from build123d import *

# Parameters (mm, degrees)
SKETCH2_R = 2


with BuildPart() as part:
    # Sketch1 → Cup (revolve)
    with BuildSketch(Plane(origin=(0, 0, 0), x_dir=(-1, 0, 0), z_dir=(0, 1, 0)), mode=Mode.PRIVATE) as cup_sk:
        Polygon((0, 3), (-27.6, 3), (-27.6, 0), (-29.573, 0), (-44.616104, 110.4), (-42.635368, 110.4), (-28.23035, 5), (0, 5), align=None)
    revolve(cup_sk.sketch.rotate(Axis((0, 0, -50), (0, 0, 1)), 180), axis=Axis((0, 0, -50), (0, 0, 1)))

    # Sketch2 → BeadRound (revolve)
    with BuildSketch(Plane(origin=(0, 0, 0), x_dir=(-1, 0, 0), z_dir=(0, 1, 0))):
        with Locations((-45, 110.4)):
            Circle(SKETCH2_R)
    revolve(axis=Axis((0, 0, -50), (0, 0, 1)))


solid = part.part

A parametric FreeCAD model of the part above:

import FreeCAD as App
import Part
import Sketcher
from FreeCAD import Vector
Q = App.Units.Quantity


def add_polygon(sketch, points):
    """Adds a closed chain of lines whose ends are joined by coincident constraints."""
    first, n = sketch.GeometryCount, len(points)
    for a, b in zip(points, points[1:] + points[:1]):
        sketch.addGeometry(Part.LineSegment(App.Vector(*a, 0), App.Vector(*b, 0)), False)
    for i in range(n):
        sketch.addConstraint(Sketcher.Constraint("Coincident", first + i, 2, first + (i + 1) % n, 1))

doc = App.newDocument("Part")
body = doc.addObject("PartDesign::Body", "Body")

# Sketch on XZ plane
sketch1 = body.newObject("Sketcher::SketchObject", "Sketch")
sketch1.AttachmentSupport = (doc.getObject("XZ_Plane"), [""])
sketch1.MapMode = "FlatFace"
add_polygon(sketch1, [(27.6, 3), (0, 3), (0, 5), (28.2, 5), (42.6, 110.4), (44.6, 110.4), (29.6, 0), (27.6, 0)])  # lines 0-7
sketch1.addConstraint([
    Sketcher.Constraint("Horizontal", 0),
    Sketcher.Constraint("Vertical", 1),
    Sketcher.Constraint("Horizontal", 2),
    Sketcher.Constraint("Horizontal", 4),
    Sketcher.Constraint("Horizontal", 6),
    Sketcher.Constraint("Vertical", 7),
    Sketcher.Constraint("PointOnObject", 0, 2, -2),
    Sketcher.Constraint("PointOnObject", 5, 2, -1),
    Sketcher.Constraint("DistanceY", 1, 1, 1, 2, Q("2 mm")),
    Sketcher.Constraint("DistanceY", 7, 1, 7, 2, Q("3 mm")),
    Sketcher.Constraint("DistanceX", 0, 2, 0, 1, Q("27.6 mm")),
    Sketcher.Constraint("DistanceY", -1, 1, 3, 2, Q("110.4 mm")),
    Sketcher.Constraint("DistanceX", 6, 2, 6, 1, Q("1.973 mm")),
    Sketcher.Constraint("DistanceX", 2, 1, 2, 2, Q("28.23035 mm")),
    Sketcher.Constraint("DistanceX", 4, 1, 4, 2, Q("1.980736 mm")),
    Sketcher.Constraint("Distance", 3, Q("106.379813 mm")),
])
revolution = body.newObject("PartDesign::Revolution", "Revolution")
revolution.Profile = sketch1
revolution.ReferenceAxis = (sketch1, ["V_Axis"])
revolution.Angle = 360

# Sketch on XZ plane
sketch2 = body.newObject("Sketcher::SketchObject", "Sketch001")
sketch2.AttachmentSupport = (doc.getObject("XZ_Plane"), [""])
sketch2.MapMode = "FlatFace"
sketch2.addGeometry(Part.Circle(Vector(45, 110.4, 0), Vector(0, 0, 1), 2), False)
sketch2.addConstraint([
    Sketcher.Constraint("Diameter", 0, Q("4 mm")),
    Sketcher.Constraint("DistanceX", -1, 1, 0, 3, Q("45 mm")),
    Sketcher.Constraint("DistanceY", -1, 1, 0, 3, Q("110.4 mm")),
])
revolution2 = body.newObject("PartDesign::Revolution", "Revolution001")
revolution2.Profile = sketch2
revolution2.ReferenceAxis = (sketch2, ["V_Axis"])
revolution2.Angle = 360

doc.recompute()
